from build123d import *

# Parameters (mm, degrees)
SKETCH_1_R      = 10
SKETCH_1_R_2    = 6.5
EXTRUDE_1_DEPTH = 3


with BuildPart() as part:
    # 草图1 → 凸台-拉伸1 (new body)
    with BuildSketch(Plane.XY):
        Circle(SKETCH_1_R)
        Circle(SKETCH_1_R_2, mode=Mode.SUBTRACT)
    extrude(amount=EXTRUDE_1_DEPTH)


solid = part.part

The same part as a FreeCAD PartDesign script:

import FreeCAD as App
import Part
import Sketcher

V = App.Vector
Q = App.Units.Quantity

doc = App.newDocument("Part")
body = doc.addObject("PartDesign::Body", "Body")

# Sketch on XY plane
sketch1 = body.newObject("Sketcher::SketchObject", "Sketch")
sketch1.AttachmentSupport = (doc.getObject("XY_Plane"), [""])
sketch1.MapMode = "FlatFace"
sketch1.addGeometry([
    Part.Circle(V(0, 0, 0), V(0, 0, 1), 10),
    Part.Circle(V(0, 0, 0), V(0, 0, 1), 6),
], False)
sketch1.addConstraint([
    Sketcher.Constraint("Coincident", 0, 3, -1, 1),
    Sketcher.Constraint("Coincident", 1, 3, -1, 1),
    Sketcher.Constraint("Diameter", 0, Q("20 mm")),
    Sketcher.Constraint("Diameter", 1, Q("13 mm")),
])
pad1 = body.newObject("PartDesign::Pad", "Pad")
pad1.Profile = sketch1
pad1.Length = 3

doc.recompute()
